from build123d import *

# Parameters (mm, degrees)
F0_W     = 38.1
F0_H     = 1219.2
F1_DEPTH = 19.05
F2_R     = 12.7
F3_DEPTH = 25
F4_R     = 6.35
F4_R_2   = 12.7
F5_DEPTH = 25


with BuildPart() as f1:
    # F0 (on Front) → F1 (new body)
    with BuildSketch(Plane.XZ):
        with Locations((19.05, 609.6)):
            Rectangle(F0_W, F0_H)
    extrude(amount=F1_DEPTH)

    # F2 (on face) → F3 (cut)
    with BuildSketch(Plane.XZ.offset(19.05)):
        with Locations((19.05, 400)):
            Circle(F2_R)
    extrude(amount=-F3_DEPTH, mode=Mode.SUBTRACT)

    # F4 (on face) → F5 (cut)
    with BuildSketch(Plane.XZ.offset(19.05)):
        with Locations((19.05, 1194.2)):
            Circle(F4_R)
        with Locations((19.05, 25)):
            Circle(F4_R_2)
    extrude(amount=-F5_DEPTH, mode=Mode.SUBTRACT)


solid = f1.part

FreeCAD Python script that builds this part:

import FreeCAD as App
import Part
import Sketcher
Q = App.Units.Quantity

doc = App.newDocument("Part")
body = doc.addObject("PartDesign::Body", "Body")

# Sketch on XZ plane
sketch1 = body.newObject("Sketcher::SketchObject", "Sketch")
sketch1.AttachmentSupport = (doc.getObject("XZ_Plane"), [""])
sketch1.MapMode = "FlatFace"
sketch1.addGeometry([
    Part.LineSegment(App.Vector(0, 1219, 0), App.Vector(0, 0, 0)),
    Part.LineSegment(App.Vector(0, 0, 0), App.Vector(38, 0, 0)),
    Part.LineSegment(App.Vector(38, 0, 0), App.Vector(38, 1219, 0)),
    Part.LineSegment(App.Vector(38, 1219, 0), App.Vector(0, 1219, 0)),
], False)
sketch1.addConstraint([
    Sketcher.Constraint("Coincident", 0, 2, 1, 1),
    Sketcher.Constraint("Coincident", 1, 2, 2, 1),
    Sketcher.Constraint("Coincident", 2, 2, 3, 1),
    Sketcher.Constraint("Coincident", 3, 2, 0, 1),
    Sketcher.Constraint("Vertical", 0),
    Sketcher.Constraint("Horizontal", 1),
    Sketcher.Constraint("Vertical", 2),
    Sketcher.Constraint("Horizontal", 3),
    Sketcher.Constraint("Coincident", 0, 2, -1, 1),
    Sketcher.Constraint("DistanceY", 0, 2, 0, 1, Q("48 in")),
    Sketcher.Constraint("DistanceX", 1, 1, 1, 2, Q("1.5 in")),
])
pad1 = body.newObject("PartDesign::Pad", "Pad")
pad1.Profile = sketch1
pad1.Length = Q("0.75 in")

# Sketch on XZ plane
sketch2 = body.newObject("Sketcher::SketchObject", "Sketch001")
sketch2.AttachmentSupport = (doc.getObject("XZ_Plane"), [""])
sketch2.MapMode = "FlatFace"
sketch2.AttachmentOffset = App.Placement(App.Vector(0, 0, 0.75 * 25.4), App.Rotation())
sketch2.addGeometry(Part.Circle(App.Vector(19, 400, 0), App.Vector(0, 0, 1), 13), False)
sketch2.addConstraint([
    Sketcher.Constraint("Diameter", 0, Q("1 in")),
    Sketcher.Constraint("DistanceX", -1, 1, 0, 3, Q("0.75 in")),
    Sketcher.Constraint("DistanceY", -1, 1, 0, 3, Q("400 mm")),
])
pocket1 = body.newObject("PartDesign::Pocket", "Pocket")
pocket1.Profile = sketch2
pocket1.Length = 25

# Sketch on XZ plane
sketch3 = body.newObject("Sketcher::SketchObject", "Sketch002")
sketch3.AttachmentSupport = (doc.getObject("XZ_Plane"), [""])
sketch3.MapMode = "FlatFace"
sketch3.AttachmentOffset = App.Placement(App.Vector(0, 0, 0.75 * 25.4), App.Rotation())
sketch3.addGeometry([
    Part.Circle(App.Vector(19, 1194, 0), App.Vector(0, 0, 1), 6),
    Part.Circle(App.Vector(19, 25, 0), App.Vector(0, 0, 1), 13),
], False)
sketch3.addConstraint([
    Sketcher.Constraint("Vertical", 0, 3, 1, 3),
    Sketcher.Constraint("Diameter", 1, Q("1 in")),
    Sketcher.Constraint("Diameter", 0, Q("0.5 in")),
    Sketcher.Constraint("DistanceX", -1, 1, 0, 3, Q("0.75 in")),
    Sketcher.Constraint("DistanceY", -1, 1, 0, 3, Q("1194.2 mm")),
    Sketcher.Constraint("DistanceY", -1, 1, 1, 3, Q("25 mm")),
])
pocket2 = body.newObject("PartDesign::Pocket", "Pocket001")
pocket2.Profile = sketch3
pocket2.Length = 25

doc.recompute()
